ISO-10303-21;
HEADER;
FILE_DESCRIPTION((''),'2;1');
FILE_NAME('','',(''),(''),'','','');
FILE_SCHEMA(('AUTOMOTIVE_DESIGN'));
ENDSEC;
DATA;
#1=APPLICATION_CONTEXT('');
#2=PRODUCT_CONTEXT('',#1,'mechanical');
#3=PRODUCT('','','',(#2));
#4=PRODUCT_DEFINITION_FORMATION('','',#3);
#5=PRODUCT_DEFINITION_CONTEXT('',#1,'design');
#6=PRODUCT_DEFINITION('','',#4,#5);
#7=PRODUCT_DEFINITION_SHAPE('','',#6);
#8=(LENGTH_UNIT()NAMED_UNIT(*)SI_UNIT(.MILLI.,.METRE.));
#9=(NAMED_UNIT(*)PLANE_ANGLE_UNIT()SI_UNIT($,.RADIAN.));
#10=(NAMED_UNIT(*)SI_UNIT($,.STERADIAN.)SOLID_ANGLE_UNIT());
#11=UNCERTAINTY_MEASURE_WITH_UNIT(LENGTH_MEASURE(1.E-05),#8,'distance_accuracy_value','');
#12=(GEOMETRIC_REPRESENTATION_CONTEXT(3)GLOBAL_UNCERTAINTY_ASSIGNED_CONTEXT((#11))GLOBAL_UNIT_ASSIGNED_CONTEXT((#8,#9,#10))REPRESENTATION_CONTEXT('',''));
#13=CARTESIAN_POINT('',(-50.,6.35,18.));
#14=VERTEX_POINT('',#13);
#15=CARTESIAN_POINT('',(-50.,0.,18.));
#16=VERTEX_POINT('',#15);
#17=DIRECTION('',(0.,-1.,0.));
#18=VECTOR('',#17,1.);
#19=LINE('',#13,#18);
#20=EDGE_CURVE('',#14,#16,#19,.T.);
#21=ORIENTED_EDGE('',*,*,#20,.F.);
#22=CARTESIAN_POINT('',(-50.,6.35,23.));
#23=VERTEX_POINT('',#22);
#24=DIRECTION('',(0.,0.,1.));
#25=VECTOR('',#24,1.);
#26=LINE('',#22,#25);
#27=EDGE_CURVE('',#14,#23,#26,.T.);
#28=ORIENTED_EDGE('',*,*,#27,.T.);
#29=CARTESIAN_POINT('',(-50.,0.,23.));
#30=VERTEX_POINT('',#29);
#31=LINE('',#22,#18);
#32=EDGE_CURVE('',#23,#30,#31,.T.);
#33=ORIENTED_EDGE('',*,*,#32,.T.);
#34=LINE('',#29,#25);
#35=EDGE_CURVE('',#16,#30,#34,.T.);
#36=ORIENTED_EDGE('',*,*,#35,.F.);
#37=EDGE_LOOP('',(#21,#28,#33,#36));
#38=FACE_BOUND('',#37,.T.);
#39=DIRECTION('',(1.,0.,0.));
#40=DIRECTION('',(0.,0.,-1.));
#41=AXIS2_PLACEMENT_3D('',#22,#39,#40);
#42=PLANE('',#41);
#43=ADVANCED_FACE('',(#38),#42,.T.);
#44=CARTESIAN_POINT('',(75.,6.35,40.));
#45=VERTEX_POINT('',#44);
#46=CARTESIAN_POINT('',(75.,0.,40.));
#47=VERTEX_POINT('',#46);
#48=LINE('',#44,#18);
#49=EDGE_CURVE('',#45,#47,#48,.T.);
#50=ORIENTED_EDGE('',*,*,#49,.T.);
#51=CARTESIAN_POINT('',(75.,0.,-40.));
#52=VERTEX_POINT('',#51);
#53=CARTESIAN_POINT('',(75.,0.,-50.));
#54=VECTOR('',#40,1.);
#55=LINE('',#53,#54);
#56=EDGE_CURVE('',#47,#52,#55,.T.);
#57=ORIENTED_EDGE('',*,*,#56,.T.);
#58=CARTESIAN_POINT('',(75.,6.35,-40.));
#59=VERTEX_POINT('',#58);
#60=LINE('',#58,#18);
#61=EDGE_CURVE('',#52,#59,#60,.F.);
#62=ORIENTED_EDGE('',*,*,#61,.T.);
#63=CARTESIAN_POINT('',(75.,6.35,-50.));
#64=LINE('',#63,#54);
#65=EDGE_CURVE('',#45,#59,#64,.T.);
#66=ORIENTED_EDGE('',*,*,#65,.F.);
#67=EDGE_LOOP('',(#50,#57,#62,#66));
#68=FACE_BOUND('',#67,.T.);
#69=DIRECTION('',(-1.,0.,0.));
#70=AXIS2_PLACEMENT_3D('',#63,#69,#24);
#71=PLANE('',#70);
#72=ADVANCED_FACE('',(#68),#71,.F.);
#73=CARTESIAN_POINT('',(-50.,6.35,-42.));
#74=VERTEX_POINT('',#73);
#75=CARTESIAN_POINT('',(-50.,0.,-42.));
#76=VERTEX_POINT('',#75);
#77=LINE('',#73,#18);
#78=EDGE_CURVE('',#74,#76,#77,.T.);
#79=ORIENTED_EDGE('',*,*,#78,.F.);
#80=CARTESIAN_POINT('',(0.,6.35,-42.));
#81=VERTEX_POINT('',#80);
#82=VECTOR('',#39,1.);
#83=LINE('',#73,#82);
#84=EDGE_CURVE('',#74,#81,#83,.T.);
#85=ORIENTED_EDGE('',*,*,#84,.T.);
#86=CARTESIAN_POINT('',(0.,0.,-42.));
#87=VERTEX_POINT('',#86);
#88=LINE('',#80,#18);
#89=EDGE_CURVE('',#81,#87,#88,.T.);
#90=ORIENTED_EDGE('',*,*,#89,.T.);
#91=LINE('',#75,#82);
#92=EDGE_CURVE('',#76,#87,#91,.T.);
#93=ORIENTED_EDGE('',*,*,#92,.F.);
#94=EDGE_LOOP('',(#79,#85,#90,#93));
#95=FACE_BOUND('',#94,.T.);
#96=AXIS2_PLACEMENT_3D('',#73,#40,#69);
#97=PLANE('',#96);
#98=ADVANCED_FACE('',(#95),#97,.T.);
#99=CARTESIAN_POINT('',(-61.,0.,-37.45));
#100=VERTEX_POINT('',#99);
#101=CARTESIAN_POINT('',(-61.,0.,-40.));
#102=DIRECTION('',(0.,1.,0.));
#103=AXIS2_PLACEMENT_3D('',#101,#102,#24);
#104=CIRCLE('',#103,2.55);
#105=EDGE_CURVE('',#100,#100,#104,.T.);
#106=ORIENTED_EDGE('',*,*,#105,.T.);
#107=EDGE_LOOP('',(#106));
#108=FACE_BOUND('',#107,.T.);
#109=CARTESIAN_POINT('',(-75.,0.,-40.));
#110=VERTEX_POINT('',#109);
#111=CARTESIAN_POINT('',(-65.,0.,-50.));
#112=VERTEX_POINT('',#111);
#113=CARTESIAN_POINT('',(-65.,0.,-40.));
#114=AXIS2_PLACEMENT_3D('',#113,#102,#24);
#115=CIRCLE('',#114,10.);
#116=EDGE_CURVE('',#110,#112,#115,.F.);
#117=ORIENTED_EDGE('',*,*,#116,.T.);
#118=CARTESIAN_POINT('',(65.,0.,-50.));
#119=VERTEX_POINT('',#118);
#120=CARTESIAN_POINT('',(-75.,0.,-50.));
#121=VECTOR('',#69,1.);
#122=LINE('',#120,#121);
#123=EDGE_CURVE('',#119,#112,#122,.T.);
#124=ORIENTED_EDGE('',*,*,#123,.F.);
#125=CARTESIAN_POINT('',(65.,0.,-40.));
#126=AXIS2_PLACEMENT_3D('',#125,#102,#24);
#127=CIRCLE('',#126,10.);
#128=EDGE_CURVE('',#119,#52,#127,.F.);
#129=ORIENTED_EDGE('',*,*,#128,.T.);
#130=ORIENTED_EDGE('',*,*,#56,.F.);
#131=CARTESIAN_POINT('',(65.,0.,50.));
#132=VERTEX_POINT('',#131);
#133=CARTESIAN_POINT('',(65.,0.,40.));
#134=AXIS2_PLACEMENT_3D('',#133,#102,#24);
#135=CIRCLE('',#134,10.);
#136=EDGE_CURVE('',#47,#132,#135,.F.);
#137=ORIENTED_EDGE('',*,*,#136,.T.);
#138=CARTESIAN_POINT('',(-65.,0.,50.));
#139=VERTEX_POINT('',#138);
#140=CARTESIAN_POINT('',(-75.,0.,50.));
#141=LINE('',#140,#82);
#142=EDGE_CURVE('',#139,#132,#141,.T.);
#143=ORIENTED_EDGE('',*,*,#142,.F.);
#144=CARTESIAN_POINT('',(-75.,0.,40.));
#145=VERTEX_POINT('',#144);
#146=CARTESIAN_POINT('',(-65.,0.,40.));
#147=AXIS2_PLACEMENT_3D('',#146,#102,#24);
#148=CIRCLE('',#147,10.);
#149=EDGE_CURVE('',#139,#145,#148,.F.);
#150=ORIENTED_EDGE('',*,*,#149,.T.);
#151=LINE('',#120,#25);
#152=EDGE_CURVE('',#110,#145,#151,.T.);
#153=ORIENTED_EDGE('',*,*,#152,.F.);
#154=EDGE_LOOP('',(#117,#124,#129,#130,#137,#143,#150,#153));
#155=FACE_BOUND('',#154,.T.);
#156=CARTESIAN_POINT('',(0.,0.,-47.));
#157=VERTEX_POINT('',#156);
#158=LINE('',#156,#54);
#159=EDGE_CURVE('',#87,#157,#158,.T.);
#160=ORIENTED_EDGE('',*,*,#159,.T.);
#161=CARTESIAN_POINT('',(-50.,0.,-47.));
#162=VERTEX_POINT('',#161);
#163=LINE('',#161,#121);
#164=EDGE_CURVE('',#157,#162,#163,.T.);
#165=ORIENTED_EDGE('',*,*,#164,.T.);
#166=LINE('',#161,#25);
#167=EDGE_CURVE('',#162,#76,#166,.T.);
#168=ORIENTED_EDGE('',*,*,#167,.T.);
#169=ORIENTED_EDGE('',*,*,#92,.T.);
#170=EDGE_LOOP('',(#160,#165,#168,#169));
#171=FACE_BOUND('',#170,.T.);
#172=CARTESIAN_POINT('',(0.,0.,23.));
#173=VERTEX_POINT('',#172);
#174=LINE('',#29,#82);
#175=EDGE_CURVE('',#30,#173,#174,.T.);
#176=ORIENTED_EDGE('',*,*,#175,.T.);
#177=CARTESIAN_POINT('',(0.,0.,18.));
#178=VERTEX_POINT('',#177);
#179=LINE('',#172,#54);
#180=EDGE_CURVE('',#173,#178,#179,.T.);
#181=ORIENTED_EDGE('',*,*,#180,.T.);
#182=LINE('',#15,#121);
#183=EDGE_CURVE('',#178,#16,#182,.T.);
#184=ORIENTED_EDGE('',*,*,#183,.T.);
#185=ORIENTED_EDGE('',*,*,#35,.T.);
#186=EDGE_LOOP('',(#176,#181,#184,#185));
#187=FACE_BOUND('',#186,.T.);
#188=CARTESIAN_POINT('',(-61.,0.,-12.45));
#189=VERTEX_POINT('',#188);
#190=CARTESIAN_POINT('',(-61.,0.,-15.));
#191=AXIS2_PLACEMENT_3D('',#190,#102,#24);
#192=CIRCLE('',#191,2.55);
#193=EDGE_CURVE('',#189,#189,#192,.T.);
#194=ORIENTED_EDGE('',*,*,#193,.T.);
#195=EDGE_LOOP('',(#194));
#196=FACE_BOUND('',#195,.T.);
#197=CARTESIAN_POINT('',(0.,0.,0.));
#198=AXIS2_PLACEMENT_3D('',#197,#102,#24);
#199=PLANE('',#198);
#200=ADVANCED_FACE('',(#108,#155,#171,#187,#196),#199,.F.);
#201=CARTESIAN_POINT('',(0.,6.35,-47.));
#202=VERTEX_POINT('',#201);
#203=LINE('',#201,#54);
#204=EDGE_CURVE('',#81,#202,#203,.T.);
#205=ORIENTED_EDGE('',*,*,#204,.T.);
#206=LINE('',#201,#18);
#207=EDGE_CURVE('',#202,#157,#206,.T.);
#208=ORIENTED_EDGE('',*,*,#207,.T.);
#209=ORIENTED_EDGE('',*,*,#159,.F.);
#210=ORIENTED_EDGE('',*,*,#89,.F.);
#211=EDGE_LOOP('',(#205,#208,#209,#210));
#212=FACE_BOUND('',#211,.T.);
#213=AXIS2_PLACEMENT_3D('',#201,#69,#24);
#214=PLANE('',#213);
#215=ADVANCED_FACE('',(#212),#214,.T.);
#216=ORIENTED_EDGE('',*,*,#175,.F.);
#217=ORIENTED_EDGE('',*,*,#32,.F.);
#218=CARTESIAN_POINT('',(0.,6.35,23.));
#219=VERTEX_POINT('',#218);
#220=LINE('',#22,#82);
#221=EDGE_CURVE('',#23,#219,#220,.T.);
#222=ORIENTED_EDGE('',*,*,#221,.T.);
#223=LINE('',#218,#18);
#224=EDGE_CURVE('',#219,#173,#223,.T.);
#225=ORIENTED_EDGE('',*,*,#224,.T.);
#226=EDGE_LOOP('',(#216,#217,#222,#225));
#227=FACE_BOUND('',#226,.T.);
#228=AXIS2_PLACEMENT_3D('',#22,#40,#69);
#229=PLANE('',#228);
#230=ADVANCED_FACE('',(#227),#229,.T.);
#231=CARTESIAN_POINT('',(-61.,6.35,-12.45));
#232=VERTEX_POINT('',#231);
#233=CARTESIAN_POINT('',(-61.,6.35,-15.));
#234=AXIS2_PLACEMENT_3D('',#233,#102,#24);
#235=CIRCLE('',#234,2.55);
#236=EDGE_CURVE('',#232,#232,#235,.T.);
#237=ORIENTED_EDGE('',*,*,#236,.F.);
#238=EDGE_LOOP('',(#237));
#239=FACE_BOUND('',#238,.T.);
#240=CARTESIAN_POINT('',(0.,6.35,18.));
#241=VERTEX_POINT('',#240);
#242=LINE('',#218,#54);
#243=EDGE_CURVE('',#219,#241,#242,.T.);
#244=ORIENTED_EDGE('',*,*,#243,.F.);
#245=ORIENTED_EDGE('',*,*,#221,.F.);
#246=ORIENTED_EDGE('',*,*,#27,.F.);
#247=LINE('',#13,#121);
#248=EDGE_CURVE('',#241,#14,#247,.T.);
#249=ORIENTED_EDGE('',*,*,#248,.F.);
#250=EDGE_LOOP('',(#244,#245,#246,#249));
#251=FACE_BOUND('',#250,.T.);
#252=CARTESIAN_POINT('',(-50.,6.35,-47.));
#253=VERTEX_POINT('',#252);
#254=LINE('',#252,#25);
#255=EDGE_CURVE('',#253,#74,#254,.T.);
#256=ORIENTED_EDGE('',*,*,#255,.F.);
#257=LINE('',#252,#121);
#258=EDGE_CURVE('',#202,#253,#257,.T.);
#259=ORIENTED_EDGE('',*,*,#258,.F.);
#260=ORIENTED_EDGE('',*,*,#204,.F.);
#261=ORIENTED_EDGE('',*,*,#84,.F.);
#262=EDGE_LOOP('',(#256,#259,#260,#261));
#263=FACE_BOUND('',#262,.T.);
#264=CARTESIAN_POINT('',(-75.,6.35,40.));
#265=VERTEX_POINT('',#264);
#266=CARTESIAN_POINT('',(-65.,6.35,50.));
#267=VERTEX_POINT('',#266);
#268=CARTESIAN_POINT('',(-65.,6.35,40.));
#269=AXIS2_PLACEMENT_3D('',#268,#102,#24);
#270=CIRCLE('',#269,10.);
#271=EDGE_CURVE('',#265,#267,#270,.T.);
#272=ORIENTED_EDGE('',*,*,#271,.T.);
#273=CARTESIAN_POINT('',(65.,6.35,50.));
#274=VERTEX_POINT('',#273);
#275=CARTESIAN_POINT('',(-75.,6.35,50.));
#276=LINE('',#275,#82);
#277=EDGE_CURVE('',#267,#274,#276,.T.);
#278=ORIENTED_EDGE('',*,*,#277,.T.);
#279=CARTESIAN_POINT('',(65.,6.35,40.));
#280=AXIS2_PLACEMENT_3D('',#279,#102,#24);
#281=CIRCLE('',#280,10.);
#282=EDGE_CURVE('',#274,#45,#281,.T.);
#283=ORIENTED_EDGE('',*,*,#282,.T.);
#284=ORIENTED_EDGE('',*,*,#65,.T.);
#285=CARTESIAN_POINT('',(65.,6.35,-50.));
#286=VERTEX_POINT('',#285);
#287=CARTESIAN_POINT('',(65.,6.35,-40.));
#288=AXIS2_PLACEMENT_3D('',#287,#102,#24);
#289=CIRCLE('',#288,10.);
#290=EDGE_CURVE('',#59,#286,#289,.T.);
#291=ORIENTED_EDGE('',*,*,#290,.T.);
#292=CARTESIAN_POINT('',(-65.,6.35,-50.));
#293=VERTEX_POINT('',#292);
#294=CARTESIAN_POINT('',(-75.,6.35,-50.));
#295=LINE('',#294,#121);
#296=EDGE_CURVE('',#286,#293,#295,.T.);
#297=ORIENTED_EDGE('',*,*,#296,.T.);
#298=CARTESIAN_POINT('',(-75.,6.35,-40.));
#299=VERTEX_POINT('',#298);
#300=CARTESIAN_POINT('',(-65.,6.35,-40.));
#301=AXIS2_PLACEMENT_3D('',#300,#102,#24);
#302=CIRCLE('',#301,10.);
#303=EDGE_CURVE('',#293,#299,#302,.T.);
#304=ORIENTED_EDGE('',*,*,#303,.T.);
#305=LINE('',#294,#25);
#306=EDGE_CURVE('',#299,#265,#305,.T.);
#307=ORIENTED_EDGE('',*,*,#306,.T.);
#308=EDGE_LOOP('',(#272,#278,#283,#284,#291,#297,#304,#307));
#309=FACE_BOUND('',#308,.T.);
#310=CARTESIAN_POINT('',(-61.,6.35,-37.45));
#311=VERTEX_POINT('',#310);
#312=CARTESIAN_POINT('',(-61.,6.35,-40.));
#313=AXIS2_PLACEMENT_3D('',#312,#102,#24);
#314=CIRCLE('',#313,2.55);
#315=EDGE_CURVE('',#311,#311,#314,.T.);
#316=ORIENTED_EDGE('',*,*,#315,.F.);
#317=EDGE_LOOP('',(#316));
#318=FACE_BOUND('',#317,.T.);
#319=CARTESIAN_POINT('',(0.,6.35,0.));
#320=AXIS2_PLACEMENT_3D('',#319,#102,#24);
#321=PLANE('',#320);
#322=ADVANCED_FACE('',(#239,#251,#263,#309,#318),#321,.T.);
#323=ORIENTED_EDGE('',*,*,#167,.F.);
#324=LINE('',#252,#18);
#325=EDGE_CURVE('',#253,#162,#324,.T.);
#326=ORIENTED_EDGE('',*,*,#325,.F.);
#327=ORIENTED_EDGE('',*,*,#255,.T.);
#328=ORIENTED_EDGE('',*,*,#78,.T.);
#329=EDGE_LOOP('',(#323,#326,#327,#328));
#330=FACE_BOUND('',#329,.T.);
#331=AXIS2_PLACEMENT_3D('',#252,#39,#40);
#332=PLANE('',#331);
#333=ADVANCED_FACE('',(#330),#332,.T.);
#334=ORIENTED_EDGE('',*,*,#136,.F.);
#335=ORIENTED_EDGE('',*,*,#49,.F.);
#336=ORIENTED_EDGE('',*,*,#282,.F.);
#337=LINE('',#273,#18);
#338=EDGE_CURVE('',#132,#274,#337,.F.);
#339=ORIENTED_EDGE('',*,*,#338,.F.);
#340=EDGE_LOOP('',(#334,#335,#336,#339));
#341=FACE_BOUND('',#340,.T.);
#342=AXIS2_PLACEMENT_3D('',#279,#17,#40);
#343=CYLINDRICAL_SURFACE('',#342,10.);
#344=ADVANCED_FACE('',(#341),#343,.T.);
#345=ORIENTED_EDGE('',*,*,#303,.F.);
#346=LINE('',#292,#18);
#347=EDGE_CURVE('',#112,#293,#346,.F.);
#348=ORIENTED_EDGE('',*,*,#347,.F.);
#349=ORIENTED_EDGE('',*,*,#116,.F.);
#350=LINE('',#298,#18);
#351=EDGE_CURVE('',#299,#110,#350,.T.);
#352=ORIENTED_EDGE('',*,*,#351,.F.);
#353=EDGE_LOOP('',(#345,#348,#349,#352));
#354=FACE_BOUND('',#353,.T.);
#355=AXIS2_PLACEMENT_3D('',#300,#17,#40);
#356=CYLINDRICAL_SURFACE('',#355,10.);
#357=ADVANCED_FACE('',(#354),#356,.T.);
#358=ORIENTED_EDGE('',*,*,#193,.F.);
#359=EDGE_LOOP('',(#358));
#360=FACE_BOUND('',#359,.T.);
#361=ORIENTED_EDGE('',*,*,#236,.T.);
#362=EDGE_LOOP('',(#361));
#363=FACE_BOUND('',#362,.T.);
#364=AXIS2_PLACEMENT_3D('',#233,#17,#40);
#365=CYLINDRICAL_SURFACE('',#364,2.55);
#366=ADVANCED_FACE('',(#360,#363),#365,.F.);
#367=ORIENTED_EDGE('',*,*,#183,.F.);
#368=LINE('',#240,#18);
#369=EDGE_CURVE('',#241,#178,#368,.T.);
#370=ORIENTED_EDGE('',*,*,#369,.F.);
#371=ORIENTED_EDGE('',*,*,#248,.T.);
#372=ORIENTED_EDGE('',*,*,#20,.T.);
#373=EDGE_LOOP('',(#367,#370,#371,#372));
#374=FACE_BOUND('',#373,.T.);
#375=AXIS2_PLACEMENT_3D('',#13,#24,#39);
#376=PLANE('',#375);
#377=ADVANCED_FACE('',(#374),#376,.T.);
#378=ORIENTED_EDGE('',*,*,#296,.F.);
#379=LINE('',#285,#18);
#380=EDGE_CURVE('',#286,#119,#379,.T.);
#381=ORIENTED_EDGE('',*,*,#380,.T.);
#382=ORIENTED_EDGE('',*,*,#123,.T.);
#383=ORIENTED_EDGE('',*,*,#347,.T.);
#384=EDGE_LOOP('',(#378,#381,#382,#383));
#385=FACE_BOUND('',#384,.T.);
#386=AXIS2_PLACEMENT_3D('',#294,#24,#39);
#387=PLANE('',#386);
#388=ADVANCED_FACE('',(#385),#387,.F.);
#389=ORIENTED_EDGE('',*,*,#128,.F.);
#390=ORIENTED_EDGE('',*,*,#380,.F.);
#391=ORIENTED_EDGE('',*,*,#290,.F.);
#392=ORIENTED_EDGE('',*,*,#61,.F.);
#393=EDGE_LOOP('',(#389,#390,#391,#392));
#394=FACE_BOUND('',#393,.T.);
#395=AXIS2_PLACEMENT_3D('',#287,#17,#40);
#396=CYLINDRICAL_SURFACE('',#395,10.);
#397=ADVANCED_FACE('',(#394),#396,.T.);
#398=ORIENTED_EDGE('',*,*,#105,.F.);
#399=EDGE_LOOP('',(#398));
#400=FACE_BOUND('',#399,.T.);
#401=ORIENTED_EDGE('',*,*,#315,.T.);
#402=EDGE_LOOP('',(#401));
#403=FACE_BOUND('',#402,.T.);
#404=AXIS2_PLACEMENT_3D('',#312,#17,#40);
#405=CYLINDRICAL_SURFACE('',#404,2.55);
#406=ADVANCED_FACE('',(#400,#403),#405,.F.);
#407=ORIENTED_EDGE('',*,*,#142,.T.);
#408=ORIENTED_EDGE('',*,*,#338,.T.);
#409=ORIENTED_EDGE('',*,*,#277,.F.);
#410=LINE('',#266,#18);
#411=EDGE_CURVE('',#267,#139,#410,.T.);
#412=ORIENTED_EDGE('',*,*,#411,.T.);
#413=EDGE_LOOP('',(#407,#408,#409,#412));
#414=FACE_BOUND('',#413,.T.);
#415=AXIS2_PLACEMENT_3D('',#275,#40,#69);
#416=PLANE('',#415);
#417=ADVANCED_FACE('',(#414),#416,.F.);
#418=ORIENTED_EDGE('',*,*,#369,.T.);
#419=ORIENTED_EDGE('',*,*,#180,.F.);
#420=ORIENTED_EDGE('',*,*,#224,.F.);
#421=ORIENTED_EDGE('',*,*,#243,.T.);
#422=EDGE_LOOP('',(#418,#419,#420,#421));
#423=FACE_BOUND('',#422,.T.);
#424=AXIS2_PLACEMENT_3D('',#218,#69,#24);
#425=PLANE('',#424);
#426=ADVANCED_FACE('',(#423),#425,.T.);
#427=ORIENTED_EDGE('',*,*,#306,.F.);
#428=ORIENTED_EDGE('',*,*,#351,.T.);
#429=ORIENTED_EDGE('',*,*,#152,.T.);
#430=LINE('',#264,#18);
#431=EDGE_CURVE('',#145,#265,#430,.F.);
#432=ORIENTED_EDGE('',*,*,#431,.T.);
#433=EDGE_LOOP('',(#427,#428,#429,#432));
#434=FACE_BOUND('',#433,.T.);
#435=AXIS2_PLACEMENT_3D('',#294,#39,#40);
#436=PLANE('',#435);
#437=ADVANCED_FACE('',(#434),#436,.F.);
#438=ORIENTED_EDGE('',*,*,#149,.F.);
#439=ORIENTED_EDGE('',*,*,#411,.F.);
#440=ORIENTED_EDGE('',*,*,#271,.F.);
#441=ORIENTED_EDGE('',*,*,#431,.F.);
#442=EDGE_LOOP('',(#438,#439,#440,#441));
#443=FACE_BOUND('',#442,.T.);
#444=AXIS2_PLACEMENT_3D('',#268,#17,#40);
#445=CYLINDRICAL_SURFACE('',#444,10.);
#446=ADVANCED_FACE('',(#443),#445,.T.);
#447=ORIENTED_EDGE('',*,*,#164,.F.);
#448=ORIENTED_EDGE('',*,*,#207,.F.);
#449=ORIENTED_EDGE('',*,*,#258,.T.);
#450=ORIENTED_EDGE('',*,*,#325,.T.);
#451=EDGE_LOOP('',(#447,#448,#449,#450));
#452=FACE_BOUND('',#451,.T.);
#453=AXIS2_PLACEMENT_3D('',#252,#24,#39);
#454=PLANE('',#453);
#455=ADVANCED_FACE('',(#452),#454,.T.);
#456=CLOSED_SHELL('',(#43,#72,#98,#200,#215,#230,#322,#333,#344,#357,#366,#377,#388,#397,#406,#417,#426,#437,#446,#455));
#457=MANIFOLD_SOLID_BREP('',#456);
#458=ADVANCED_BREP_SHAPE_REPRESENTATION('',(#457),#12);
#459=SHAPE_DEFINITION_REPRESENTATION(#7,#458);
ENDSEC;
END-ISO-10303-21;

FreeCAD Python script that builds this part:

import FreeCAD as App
import Part
import Sketcher

V = App.Vector


def edges_at(feature, points):
    """Names of the edges that pass closest to the given points."""
    edges = feature.Shape.Edges
    near = lambda p: min(range(len(edges)), key=lambda i: edges[i].distToShape(Part.Vertex(*p))[0])
    return sorted({f"Edge{near(p) + 1}" for p in points})


def add_polygon(sketch, points):
    """Adds a closed chain of lines whose ends are joined by coincident constraints."""
    first, n = sketch.GeometryCount, len(points)
    for a, b in zip(points, points[1:] + points[:1]):
        sketch.addGeometry(Part.LineSegment(App.Vector(*a, 0), App.Vector(*b, 0)), False)
    for i in range(n):
        sketch.addConstraint(Sketcher.Constraint("Coincident", first + i, 2, first + (i + 1) % n, 1))

doc = App.newDocument("Part")
body = doc.addObject("PartDesign::Body", "Body")

sketch1 = body.newObject("Sketcher::SketchObject", "Sketch")
sketch1.AttachmentSupport = (doc.getObject("XZ_Plane"), [""])
sketch1.MapMode = "FlatFace"
add_polygon(sketch1, [(-75, -50), (-75, 50), (75, 50), (75, -50)])
add_polygon(sketch1, [(0, 23), (-50, 23), (-50, 18), (0, 18)])
sketch1.addGeometry(Part.Circle(V(-61, -15, 0), V(0, 0, 1), 2.5), False)
sketch1.addGeometry(Part.Circle(V(-61, -40, 0), V(0, 0, 1), 2.5), False)
add_polygon(sketch1, [(0, -42), (-50, -42), (-50, -47), (0, -47)])
sketch1.addConstraint(Sketcher.Constraint("Vertical", 0))
sketch1.addConstraint(Sketcher.Constraint("Horizontal", 1))
sketch1.addConstraint(Sketcher.Constraint("Vertical", 2))
sketch1.addConstraint(Sketcher.Constraint("Horizontal", 3))
sketch1.addConstraint(Sketcher.Constraint("Horizontal", 4))
sketch1.addConstraint(Sketcher.Constraint("Vertical", 5))
sketch1.addConstraint(Sketcher.Constraint("Horizontal", 6))
sketch1.addConstraint(Sketcher.Constraint("Vertical", 7))
sketch1.addConstraint(Sketcher.Constraint("Horizontal", 10))
sketch1.addConstraint(Sketcher.Constraint("Vertical", 11))
sketch1.addConstraint(Sketcher.Constraint("Horizontal", 12))
sketch1.addConstraint(Sketcher.Constraint("Vertical", 13))
sketch1.addConstraint(Sketcher.Constraint("Equal", 8, 9))
sketch1.addConstraint(Sketcher.Constraint("Symmetric", 0, 2, 2, 2, -1, 1))
sketch1.addConstraint(Sketcher.Constraint("PointOnObject", 6, 2, -2))
sketch1.addConstraint(Sketcher.Constraint("PointOnObject", 12, 2, -2))
sketch1.addConstraint(Sketcher.Constraint("Vertical", 8, 3, 9, 3))
sketch1.addConstraint(Sketcher.Constraint("Vertical", 5, 2, 10, 2))
sketch1.addConstraint(Sketcher.Constraint("Equal", 7, 11))
sketch1.addConstraint(Sketcher.Constraint("Diameter", 8, 5.1))
sketch1.addConstraint(Sketcher.Constraint("DistanceX", 1, 1, 1, 2, 150.0))
sketch1.addConstraint(Sketcher.Constraint("DistanceX", 4, 2, 4, 1, 50.0))
sketch1.addConstraint(Sketcher.Constraint("DistanceY", 0, 1, 0, 2, 100.0))
sketch1.addConstraint(Sketcher.Constraint("DistanceY", 5, 2, 5, 1, 5.0))
sketch1.addConstraint(Sketcher.Constraint("DistanceX", 8, 3, -1, 1, 61.0))
sketch1.addConstraint(Sketcher.Constraint("DistanceY", 8, 3, -1, 1, 15.0))
sketch1.addConstraint(Sketcher.Constraint("DistanceY", 9, 3, -1, 1, 40.0))
sketch1.addConstraint(Sketcher.Constraint("DistanceY", -1, 1, 4, 2, 23.0))
sketch1.addConstraint(Sketcher.Constraint("DistanceY", 10, 2, -1, 1, 42.0))
pad1 = body.newObject("PartDesign::Pad", "Pad")
pad1.Profile = sketch1
pad1.Length = 6.35
pad1.Reversed = True
doc.recompute()

fillet = body.newObject("PartDesign::Fillet", "Fillet")
fillet.Base = (pad1, edges_at(pad1, [
    (75, 3.175, 50),
    (-75, 3.175, 50),
    (-75, 3.175, -50),
    (75, 3.175, -50),
]))
fillet.Radius = 10

doc.recompute()
